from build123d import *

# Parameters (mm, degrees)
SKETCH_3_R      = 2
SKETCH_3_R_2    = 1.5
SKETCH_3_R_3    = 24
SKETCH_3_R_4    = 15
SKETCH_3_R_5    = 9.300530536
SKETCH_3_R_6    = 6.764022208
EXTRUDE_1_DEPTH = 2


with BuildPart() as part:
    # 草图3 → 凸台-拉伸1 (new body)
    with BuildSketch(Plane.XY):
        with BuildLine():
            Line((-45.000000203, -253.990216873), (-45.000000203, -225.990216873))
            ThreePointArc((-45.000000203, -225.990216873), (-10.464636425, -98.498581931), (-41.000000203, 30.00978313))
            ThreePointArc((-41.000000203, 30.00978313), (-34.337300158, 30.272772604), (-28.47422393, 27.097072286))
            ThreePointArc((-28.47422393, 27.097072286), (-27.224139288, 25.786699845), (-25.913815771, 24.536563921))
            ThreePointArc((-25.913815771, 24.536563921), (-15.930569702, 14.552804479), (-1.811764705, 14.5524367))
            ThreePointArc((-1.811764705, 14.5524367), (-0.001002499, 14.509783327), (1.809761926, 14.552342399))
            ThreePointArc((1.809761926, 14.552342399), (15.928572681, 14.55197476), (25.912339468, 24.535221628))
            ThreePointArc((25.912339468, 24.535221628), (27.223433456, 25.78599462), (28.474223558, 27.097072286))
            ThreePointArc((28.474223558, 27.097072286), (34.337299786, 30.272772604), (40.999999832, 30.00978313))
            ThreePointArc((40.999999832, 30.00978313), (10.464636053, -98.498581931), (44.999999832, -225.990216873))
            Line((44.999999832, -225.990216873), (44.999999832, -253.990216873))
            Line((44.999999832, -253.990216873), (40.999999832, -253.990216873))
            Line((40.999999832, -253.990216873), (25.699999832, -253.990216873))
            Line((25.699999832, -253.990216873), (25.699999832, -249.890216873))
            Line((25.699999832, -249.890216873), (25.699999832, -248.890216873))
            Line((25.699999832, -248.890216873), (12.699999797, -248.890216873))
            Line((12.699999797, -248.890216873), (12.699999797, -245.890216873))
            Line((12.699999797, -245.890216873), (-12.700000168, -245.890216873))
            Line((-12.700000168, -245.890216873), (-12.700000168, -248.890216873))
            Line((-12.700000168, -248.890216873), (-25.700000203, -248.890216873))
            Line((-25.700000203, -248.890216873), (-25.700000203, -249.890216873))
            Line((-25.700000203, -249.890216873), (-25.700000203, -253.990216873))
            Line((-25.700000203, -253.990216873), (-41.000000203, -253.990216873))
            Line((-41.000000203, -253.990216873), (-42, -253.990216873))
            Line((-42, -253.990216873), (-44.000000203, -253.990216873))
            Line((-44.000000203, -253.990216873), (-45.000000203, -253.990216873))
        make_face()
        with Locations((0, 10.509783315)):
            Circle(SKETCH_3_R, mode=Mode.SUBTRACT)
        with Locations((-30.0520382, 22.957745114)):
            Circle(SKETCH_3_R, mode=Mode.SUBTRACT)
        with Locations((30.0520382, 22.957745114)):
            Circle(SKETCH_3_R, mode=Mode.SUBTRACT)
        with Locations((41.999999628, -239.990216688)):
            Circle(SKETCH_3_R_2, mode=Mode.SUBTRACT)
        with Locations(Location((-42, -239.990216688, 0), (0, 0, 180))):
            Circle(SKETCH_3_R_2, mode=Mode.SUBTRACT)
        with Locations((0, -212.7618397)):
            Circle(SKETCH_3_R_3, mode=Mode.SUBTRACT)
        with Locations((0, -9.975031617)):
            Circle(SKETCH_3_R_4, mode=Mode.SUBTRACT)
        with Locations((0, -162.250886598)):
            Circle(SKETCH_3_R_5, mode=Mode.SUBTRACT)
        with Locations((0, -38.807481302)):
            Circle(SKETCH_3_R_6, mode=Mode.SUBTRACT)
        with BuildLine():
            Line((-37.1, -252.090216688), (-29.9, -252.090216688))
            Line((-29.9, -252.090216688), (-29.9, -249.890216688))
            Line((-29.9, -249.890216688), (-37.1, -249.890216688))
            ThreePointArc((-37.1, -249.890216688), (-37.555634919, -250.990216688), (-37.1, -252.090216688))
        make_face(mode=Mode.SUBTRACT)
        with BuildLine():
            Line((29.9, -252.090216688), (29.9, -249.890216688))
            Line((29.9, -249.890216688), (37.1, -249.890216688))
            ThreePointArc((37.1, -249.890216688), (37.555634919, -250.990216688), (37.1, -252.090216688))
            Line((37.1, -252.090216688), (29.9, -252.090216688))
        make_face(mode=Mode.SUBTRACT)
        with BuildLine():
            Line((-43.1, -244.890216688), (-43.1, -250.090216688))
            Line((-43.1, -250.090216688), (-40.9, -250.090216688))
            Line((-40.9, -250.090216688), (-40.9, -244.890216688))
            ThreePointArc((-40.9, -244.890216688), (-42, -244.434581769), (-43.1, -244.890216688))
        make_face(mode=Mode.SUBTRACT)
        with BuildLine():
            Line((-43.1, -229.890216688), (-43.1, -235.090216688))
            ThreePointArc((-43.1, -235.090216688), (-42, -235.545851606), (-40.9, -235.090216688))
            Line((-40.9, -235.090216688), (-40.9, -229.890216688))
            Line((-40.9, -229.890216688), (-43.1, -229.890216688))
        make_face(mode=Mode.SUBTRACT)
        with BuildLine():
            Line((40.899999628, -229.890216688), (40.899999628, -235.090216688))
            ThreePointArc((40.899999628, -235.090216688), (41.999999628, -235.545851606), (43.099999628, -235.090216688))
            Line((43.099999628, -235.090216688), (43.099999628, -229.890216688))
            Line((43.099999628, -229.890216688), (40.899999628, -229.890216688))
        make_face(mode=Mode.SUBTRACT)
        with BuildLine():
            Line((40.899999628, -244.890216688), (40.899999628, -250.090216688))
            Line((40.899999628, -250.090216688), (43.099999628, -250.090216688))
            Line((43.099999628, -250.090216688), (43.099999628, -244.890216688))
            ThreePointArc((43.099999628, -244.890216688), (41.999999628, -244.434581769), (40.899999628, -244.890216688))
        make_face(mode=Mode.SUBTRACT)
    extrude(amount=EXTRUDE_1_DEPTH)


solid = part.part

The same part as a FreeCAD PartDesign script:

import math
import FreeCAD as App
import Part
import Sketcher
from FreeCAD import Vector
Q = App.Units.Quantity

doc = App.newDocument("Part")
params = doc.addObject("Spreadsheet::Sheet", "Params")
for row, (alias, value) in enumerate([
    ("sketch1_diameter", "3 mm"),
    ("sketch1_diameter2", "48 mm"),
    ("sketch1_diameter3", "4 mm"),
    ("sketch1_diameter4", "30 mm"),
    ("sketch1_radius", "38.5 mm"),
    ("pad1_length", "2 mm"),
], start=1):
    params.set(f"A{row}", alias)
    params.set(f"B{row}", "=" + value)
    params.setAlias(f"B{row}", alias)

body = doc.addObject("PartDesign::Body", "Body")

sketch1 = doc.addObject("Sketcher::SketchObject", "Sketch")
body.addObject(sketch1)
sketch1.AttachmentSupport = (doc.XY_Plane, [""])
sketch1.MapMode = "FlatFace"
sketch1.addGeometry([
    Part.LineSegment(Vector(-45, -226, 0), Vector(-45, -254, 0)),
    Part.LineSegment(Vector(-45, -254, 0), Vector(-25.7, -254, 0)),
    Part.LineSegment(Vector(-25.7, -254, 0), Vector(-25.7, -248.9, 0)),
    Part.LineSegment(Vector(-25.7, -248.9, 0), Vector(-12.7, -248.9, 0)),
    Part.LineSegment(Vector(-12.7, -248.9, 0), Vector(-12.7, -245.9, 0)),
    Part.LineSegment(Vector(-12.7, -245.9, 0), Vector(12.7, -245.9, 0)),
    Part.LineSegment(Vector(12.7, -245.9, 0), Vector(12.7, -248.9, 0)),
    Part.LineSegment(Vector(12.7, -248.9, 0), Vector(25.7, -248.9, 0)),
    Part.LineSegment(Vector(25.7, -248.9, 0), Vector(25.7, -254, 0)),
    Part.LineSegment(Vector(25.7, -254, 0), Vector(45, -254, 0)),
    Part.LineSegment(Vector(45, -254, 0), Vector(45, -226, 0)),
    Part.ArcOfCircle(Part.Circle(Vector(278.5, -94.3, 0), Vector(0, 0, 1), 268.1), math.radians(152), math.radians(209)),
    Part.ArcOfCircle(Part.Circle(Vector(37.2, 18, 0), Vector(0, 0, 1), 12.6), math.radians(72), math.radians(134)),
    Part.ArcOfCircle(Part.Circle(Vector(0, 53, 0), Vector(0, 0, 1), 38.5), math.radians(-47.7), math.radians(-42.3)),
    Part.ArcOfCircle(Part.Circle(Vector(8.9, 31.6, 0), Vector(0, 0, 1), 18.4), math.radians(-113), math.radians(-23)),
    Part.ArcOfCircle(Part.Circle(Vector(0, 53, 0), Vector(0, 0, 1), 38.5), math.radians(-92.7), math.radians(-87.31)),
    Part.ArcOfCircle(Part.Circle(Vector(-8.9, 31.6, 0), Vector(0, 0, 1), 18.4), math.radians(-158), math.radians(-68)),
    Part.ArcOfCircle(Part.Circle(Vector(0, 53, 0), Vector(0, 0, 1), 38.5), math.radians(-137.7), math.radians(-132.31)),
    Part.ArcOfCircle(Part.Circle(Vector(-37.2, 18, 0), Vector(0, 0, 1), 12.6), math.radians(46), math.radians(108)),
    Part.ArcOfCircle(Part.Circle(Vector(-278.5, -94.3, 0), Vector(0, 0, 1), 268.1), math.radians(-29), math.radians(28)),
    Part.ArcOfCircle(Part.Circle(Vector(42, -246, 0), Vector(0, 0, 1), 1.6), math.radians(45), math.radians(135)),
    Part.LineSegment(Vector(43.1, -244.9, 0), Vector(43.1, -250.1, 0)),
    Part.LineSegment(Vector(43.1, -250.1, 0), Vector(40.9, -250.1, 0)),
    Part.LineSegment(Vector(40.9, -250.1, 0), Vector(40.9, -244.9, 0)),
    Part.Circle(Vector(42, -240, 0), Vector(0, 0, 1), 1.5),
    Part.LineSegment(Vector(29.9, -252.1, 0), Vector(29.9, -249.9, 0)),
    Part.LineSegment(Vector(29.9, -249.9, 0), Vector(37.1, -249.9, 0)),
    Part.ArcOfCircle(Part.Circle(Vector(36, -251, 0), Vector(0, 0, 1), 1.6), math.radians(-45), math.radians(45)),
    Part.LineSegment(Vector(37.1, -252.1, 0), Vector(29.9, -252.1, 0)),
    Part.LineSegment(Vector(40.9, -229.9, 0), Vector(43.1, -229.9, 0)),
    Part.LineSegment(Vector(43.1, -229.9, 0), Vector(43.1, -235.1, 0)),
    Part.ArcOfCircle(Part.Circle(Vector(42, -234, 0), Vector(0, 0, 1), 1.6), math.radians(-135), math.radians(-45)),
    Part.LineSegment(Vector(40.9, -235.1, 0), Vector(40.9, -229.9, 0)),
    Part.Circle(Vector(0, -212.8, 0), Vector(0, 0, 1), 24),
    Part.Circle(Vector(0, -162.3, 0), Vector(0, 0, 1), 9.3),
    Part.ArcOfCircle(Part.Circle(Vector(-36, -251, 0), Vector(0, 0, 1), 1.6), math.radians(135), math.radians(225)),
    Part.LineSegment(Vector(-37.1, -249.9, 0), Vector(-29.9, -249.9, 0)),
    Part.LineSegment(Vector(-29.9, -249.9, 0), Vector(-29.9, -252.1, 0)),
    Part.LineSegment(Vector(-29.9, -252.1, 0), Vector(-37.1, -252.1, 0)),
    Part.ArcOfCircle(Part.Circle(Vector(-42, -246, 0), Vector(0, 0, 1), 1.6), math.radians(45), math.radians(135)),
    Part.LineSegment(Vector(-40.9, -244.9, 0), Vector(-40.9, -250.1, 0)),
    Part.LineSegment(Vector(-40.9, -250.1, 0), Vector(-43.1, -250.1, 0)),
    Part.LineSegment(Vector(-43.1, -250.1, 0), Vector(-43.1, -244.9, 0)),
    Part.Circle(Vector(-42, -240, 0), Vector(0, 0, 1), 1.5),
    Part.LineSegment(Vector(-43.1, -229.9, 0), Vector(-40.9, -229.9, 0)),
    Part.LineSegment(Vector(-40.9, -229.9, 0), Vector(-40.9, -235.1, 0)),
    Part.ArcOfCircle(Part.Circle(Vector(-42, -234, 0), Vector(0, 0, 1), 1.6), math.radians(-135), math.radians(-45)),
    Part.LineSegment(Vector(-43.1, -235.1, 0), Vector(-43.1, -229.9, 0)),
    Part.Circle(Vector(30.1, 23, 0), Vector(0, 0, 1), 2),
    Part.Circle(Vector(0, -38.8, 0), Vector(0, 0, 1), 6.8),
    Part.Circle(Vector(0, -10, 0), Vector(0, 0, 1), 15),
    Part.Circle(Vector(0, 10.5, 0), Vector(0, 0, 1), 2),
    Part.Circle(Vector(-30.1, 23, 0), Vector(0, 0, 1), 2),
], False)
sketch1.addConstraint([
    Sketcher.Constraint("Coincident", 0, 2, 1, 1),
    Sketcher.Constraint("Coincident", 1, 2, 2, 1),
    Sketcher.Constraint("Coincident", 2, 2, 3, 1),
    Sketcher.Constraint("Coincident", 3, 2, 4, 1),
    Sketcher.Constraint("Coincident", 4, 2, 5, 1),
    Sketcher.Constraint("Coincident", 5, 2, 6, 1),
    Sketcher.Constraint("Coincident", 6, 2, 7, 1),
    Sketcher.Constraint("Coincident", 7, 2, 8, 1),
    Sketcher.Constraint("Coincident", 8, 2, 9, 1),
    Sketcher.Constraint("Coincident", 9, 2, 10, 1),
    Sketcher.Constraint("Coincident", 10, 2, 11, 2),
    Sketcher.Constraint("Coincident", 11, 1, 12, 1),
    Sketcher.Constraint("Coincident", 12, 2, 13, 2),
    Sketcher.Constraint("Coincident", 13, 1, 14, 2),
    Sketcher.Constraint("Coincident", 14, 1, 15, 2),
    Sketcher.Constraint("Coincident", 15, 1, 16, 2),
    Sketcher.Constraint("Coincident", 16, 1, 17, 2),
    Sketcher.Constraint("Coincident", 17, 1, 18, 1),
    Sketcher.Constraint("Coincident", 18, 2, 19, 2),
    Sketcher.Constraint("Coincident", 19, 1, 0, 1),
    Sketcher.Constraint("Coincident", 20, 1, 21, 1),
    Sketcher.Constraint("Coincident", 21, 2, 22, 1),
    Sketcher.Constraint("Coincident", 22, 2, 23, 1),
    Sketcher.Constraint("Coincident", 23, 2, 20, 2),
    Sketcher.Constraint("Coincident", 25, 2, 26, 1),
    Sketcher.Constraint("Coincident", 26, 2, 27, 2),
    Sketcher.Constraint("Coincident", 27, 1, 28, 1),
    Sketcher.Constraint("Coincident", 28, 2, 25, 1),
    Sketcher.Constraint("Coincident", 29, 2, 30, 1),
    Sketcher.Constraint("Coincident", 30, 2, 31, 2),
    Sketcher.Constraint("Coincident", 31, 1, 32, 1),
    Sketcher.Constraint("Coincident", 32, 2, 29, 1),
    Sketcher.Constraint("Coincident", 35, 1, 36, 1),
    Sketcher.Constraint("Coincident", 36, 2, 37, 1),
    Sketcher.Constraint("Coincident", 37, 2, 38, 1),
    Sketcher.Constraint("Coincident", 38, 2, 35, 2),
    Sketcher.Constraint("Coincident", 39, 1, 40, 1),
    Sketcher.Constraint("Coincident", 40, 2, 41, 1),
    Sketcher.Constraint("Coincident", 41, 2, 42, 1),
    Sketcher.Constraint("Coincident", 42, 2, 39, 2),
    Sketcher.Constraint("Coincident", 44, 2, 45, 1),
    Sketcher.Constraint("Coincident", 45, 2, 46, 2),
    Sketcher.Constraint("Coincident", 46, 1, 47, 1),
    Sketcher.Constraint("Coincident", 47, 2, 44, 1),
    Sketcher.Constraint("Vertical", 0),
    Sketcher.Constraint("Horizontal", 1),
    Sketcher.Constraint("Vertical", 2),
    Sketcher.Constraint("Horizontal", 3),
    Sketcher.Constraint("Vertical", 4),
    Sketcher.Constraint("Horizontal", 5),
    Sketcher.Constraint("Vertical", 6),
    Sketcher.Constraint("Horizontal", 7),
    Sketcher.Constraint("Vertical", 8),
    Sketcher.Constraint("Horizontal", 9),
    Sketcher.Constraint("Vertical", 10),
    Sketcher.Constraint("Vertical", 21),
    Sketcher.Constraint("Horizontal", 22),
    Sketcher.Constraint("Vertical", 23),
    Sketcher.Constraint("Vertical", 25),
    Sketcher.Constraint("Horizontal", 26),
    Sketcher.Constraint("Horizontal", 28),
    Sketcher.Constraint("Horizontal", 29),
    Sketcher.Constraint("Vertical", 30),
    Sketcher.Constraint("Vertical", 32),
    Sketcher.Constraint("Horizontal", 36),
    Sketcher.Constraint("Vertical", 37),
    Sketcher.Constraint("Horizontal", 38),
    Sketcher.Constraint("Vertical", 40),
    Sketcher.Constraint("Horizontal", 41),
    Sketcher.Constraint("Vertical", 42),
    Sketcher.Constraint("Horizontal", 44),
    Sketcher.Constraint("Vertical", 45),
    Sketcher.Constraint("Vertical", 47),
    Sketcher.Constraint("Coincident", 15, 3, 13, 3),
    Sketcher.Constraint("Equal", 13, 15),
    Sketcher.Constraint("Equal", 14, 16),
    Sketcher.Constraint("Equal", 12, 18),
    Sketcher.Constraint("Equal", 11, 19),
    Sketcher.Constraint("Equal", 20, 27),
    Sketcher.Constraint("Equal", 27, 31),
    Sketcher.Constraint("Equal", 31, 35),
    Sketcher.Constraint("Equal", 35, 39),
    Sketcher.Constraint("Equal", 24, 43),
    Sketcher.Constraint("Equal", 39, 46),
    Sketcher.Constraint("Equal", 48, 51),
    Sketcher.Constraint("Equal", 51, 52),
    Sketcher.Constraint("Symmetric", 12, 3, 18, 3, -2),
    Sketcher.Constraint("Symmetric", 11, 3, 19, 3, -2),
    Sketcher.Constraint("Symmetric", 27, 3, 35, 3, -2),
    Sketcher.Constraint("Symmetric", 20, 3, 39, 3, -2),
    Sketcher.Constraint("Symmetric", 24, 3, 43, 3, -2),
    Sketcher.Constraint("Symmetric", 31, 3, 46, 3, -2),
    Sketcher.Constraint("Symmetric", 48, 3, 52, 3, -2),
    Sketcher.Constraint("Symmetric", 3, 2, 6, 2, -2),
    Sketcher.Constraint("Symmetric", 1, 2, 8, 2, -2),
    Sketcher.Constraint("Symmetric", 25, 2, 36, 2, -2),
    Sketcher.Constraint("Symmetric", 22, 2, 40, 2, -2),
    Sketcher.Constraint("Symmetric", 32, 2, 44, 2, -2),
    Sketcher.Constraint("PointOnObject", 13, 3, -2),
    Sketcher.Constraint("PointOnObject", 33, 3, -2),
    Sketcher.Constraint("PointOnObject", 34, 3, -2),
    Sketcher.Constraint("PointOnObject", 49, 3, -2),
    Sketcher.Constraint("PointOnObject", 50, 3, -2),
    Sketcher.Constraint("PointOnObject", 51, 3, -2),
    Sketcher.Constraint("Horizontal", 12, 2, 17, 1),
    Sketcher.Constraint("Horizontal", 10, 2, 19, 1),
    Sketcher.Constraint("Horizontal", 20, 1, 23, 2),
    Sketcher.Constraint("Horizontal", 30, 2, 31, 1),
    Sketcher.Constraint("Horizontal", 28, 2, 37, 2),
    Sketcher.Constraint("Horizontal", 39, 1, 42, 2),
    Sketcher.Constraint("Horizontal", 45, 2, 46, 1),
    Sketcher.Constraint("Vertical", 20, 3, 24, 3),
    Sketcher.Constraint("Vertical", 24, 3, 31, 3),
    Sketcher.Constraint("Vertical", 26, 2, 27, 1),
    Sketcher.Constraint("Vertical", 21, 2, 29, 2),
    Sketcher.Constraint("Equal", 44, 25),
    Sketcher.Constraint("Equal", 23, 30),
    Sketcher.Constraint("Diameter", 24, Q("3 mm")),
    Sketcher.Constraint("Diameter", 33, Q("48 mm")),
    Sketcher.Constraint("Diameter", 48, Q("4 mm")),
    Sketcher.Constraint("Diameter", 50, Q("30 mm")),
    Sketcher.Constraint("Radius", 13, Q("38.5 mm")),
    Sketcher.Constraint("DistanceX", 3, 1, 3, 2, Q("13 mm")),
    Sketcher.Constraint("DistanceY", 0, 2, 0, 1, Q("28 mm")),
    Sketcher.Constraint("DistanceY", 4, 1, 4, 2, Q("3 mm")),
    Sketcher.Constraint("DistanceX", 1, 1, 1, 2, Q("19.3 mm")),
    Sketcher.Constraint("DistanceX", 5, 1, 5, 2, Q("25.4 mm")),
    Sketcher.Constraint("DistanceX", 22, 2, 22, 1, Q("2.2 mm")),
    Sketcher.Constraint("DistanceX", 26, 1, 26, 2, Q("7.2 mm")),
    Sketcher.Constraint("DistanceY", 2, 1, 2, 2, Q("5.1 mm")),
    Sketcher.Constraint("DistanceY", 21, 2, 21, 1, Q("5.2 mm")),
    Sketcher.Constraint("DistanceX", -1, 1, 20, 3, Q("42 mm")),
    Sketcher.Constraint("DistanceX", -1, 1, 27, 3, Q("36 mm")),
    Sketcher.Constraint("DistanceX", -1, 1, 11, 1, Q("41 mm")),
    Sketcher.Constraint("DistanceX", -1, 1, 25, 2, Q("29.9 mm")),
    Sketcher.Constraint("Diameter", 34, Q("18.601061 mm")),
    Sketcher.Constraint("Radius", 12, Q("12.59355 mm")),
    Sketcher.Constraint("Diameter", 49, Q("13.528044 mm")),
    Sketcher.Constraint("Radius", 11, Q("268.087966 mm")),
    Sketcher.Constraint("Radius", 14, Q("18.447115 mm")),
    Sketcher.Constraint("Radius", 17, Q("38.500145 mm")),
    Sketcher.Constraint("DistanceY", 11, 3, -1, 1, Q("94.310219 mm")),
    Sketcher.Constraint("DistanceX", -1, 1, 14, 3, Q("8.869611 mm")),
    Sketcher.Constraint("DistanceY", -1, 1, 14, 3, Q("31.595071 mm")),
    Sketcher.Constraint("DistanceY", -1, 1, 17, 3, Q("53.009881 mm")),
    Sketcher.Constraint("DistanceY", 33, 3, -1, 1, Q("212.76184 mm")),
    Sketcher.Constraint("DistanceX", -1, 1, 48, 3, Q("30.052038 mm")),
    Sketcher.Constraint("DistanceY", 49, 3, -1, 1, Q("38.807481 mm")),
    Sketcher.Constraint("DistanceY", 50, 3, -1, 1, Q("9.975032 mm")),
    Sketcher.Constraint("DistanceX", -1, 1, 13, 1, Q("25.912339 mm")),
    Sketcher.Constraint("DistanceX", -1, 1, 11, 3, Q("278.519882 mm")),
    Sketcher.Constraint("DistanceX", -1, 1, 12, 3, Q("37.189667 mm")),
    Sketcher.Constraint("DistanceX", 16, 3, -1, 1, Q("8.870723 mm")),
    Sketcher.Constraint("DistanceY", -1, 1, 16, 3, Q("31.595534 mm")),
    Sketcher.Constraint("DistanceY", 20, 3, -1, 1, Q("245.990217 mm")),
    Sketcher.Constraint("DistanceY", 24, 3, -1, 1, Q("239.990217 mm")),
    Sketcher.Constraint("DistanceY", 27, 3, -1, 1, Q("250.990217 mm")),
    Sketcher.Constraint("DistanceY", 31, 3, -1, 1, Q("233.990217 mm")),
    Sketcher.Constraint("DistanceY", 34, 3, -1, 1, Q("162.250887 mm")),
    Sketcher.Constraint("DistanceY", -1, 1, 48, 3, Q("22.957745 mm")),
    Sketcher.Constraint("DistanceY", -1, 1, 51, 3, Q("10.509783 mm")),
])
sketch1.setExpression("Constraints[117]", "Params.sketch1_diameter")
sketch1.setExpression("Constraints[118]", "Params.sketch1_diameter2")
sketch1.setExpression("Constraints[119]", "Params.sketch1_diameter3")
sketch1.setExpression("Constraints[120]", "Params.sketch1_diameter4")
sketch1.setExpression("Constraints[121]", "Params.sketch1_radius")
pad1 = doc.addObject("PartDesign::Pad", "Pad")
body.addObject(pad1)
pad1.Profile = sketch1
pad1.setExpression("Length", "Params.pad1_length")

doc.recompute()
